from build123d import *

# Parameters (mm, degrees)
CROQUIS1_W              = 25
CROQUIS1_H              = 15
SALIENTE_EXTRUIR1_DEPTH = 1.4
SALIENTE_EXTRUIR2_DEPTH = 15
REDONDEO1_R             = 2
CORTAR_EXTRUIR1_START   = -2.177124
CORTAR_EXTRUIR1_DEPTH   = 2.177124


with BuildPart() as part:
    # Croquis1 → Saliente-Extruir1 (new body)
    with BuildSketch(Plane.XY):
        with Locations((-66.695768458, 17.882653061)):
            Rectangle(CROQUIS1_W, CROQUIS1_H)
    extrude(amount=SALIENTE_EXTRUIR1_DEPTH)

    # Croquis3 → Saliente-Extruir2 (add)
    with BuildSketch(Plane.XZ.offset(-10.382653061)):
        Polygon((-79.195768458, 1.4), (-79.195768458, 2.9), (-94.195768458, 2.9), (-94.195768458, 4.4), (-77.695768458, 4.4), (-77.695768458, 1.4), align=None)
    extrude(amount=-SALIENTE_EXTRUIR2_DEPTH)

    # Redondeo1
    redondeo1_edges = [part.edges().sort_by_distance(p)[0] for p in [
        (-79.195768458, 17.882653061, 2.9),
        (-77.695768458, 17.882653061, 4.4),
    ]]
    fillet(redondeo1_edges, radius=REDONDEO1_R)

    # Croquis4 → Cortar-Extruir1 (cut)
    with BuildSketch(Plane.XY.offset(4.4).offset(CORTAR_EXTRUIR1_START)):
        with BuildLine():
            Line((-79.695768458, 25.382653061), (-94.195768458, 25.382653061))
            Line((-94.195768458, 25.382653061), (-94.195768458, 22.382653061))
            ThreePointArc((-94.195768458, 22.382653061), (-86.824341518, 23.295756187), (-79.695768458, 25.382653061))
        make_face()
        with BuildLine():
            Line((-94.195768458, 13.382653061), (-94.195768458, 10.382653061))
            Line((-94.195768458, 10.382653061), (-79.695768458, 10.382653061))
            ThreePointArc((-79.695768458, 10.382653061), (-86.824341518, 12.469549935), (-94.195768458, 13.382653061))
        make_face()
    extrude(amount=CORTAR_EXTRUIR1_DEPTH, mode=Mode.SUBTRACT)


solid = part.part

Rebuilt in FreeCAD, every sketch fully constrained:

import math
import FreeCAD as App
import Part
import Sketcher


def edges_at(feature, points):
    """Names of the edges that pass closest to the given points."""
    edges = feature.Shape.Edges
    near = lambda p: min(range(len(edges)), key=lambda i: edges[i].distToShape(Part.Vertex(*p))[0])
    return sorted({f"Edge{near(p) + 1}" for p in points})


def add_polygon(sketch, points):
    """Adds a closed chain of lines whose ends are joined by coincident constraints."""
    first, n = sketch.GeometryCount, len(points)
    for a, b in zip(points, points[1:] + points[:1]):
        sketch.addGeometry(Part.LineSegment(App.Vector(*a, 0), App.Vector(*b, 0)), False)
    for i in range(n):
        sketch.addConstraint(Sketcher.Constraint("Coincident", first + i, 2, first + (i + 1) % n, 1))

doc = App.newDocument("Part")
params = doc.addObject("Spreadsheet::Sheet", "Params")
for row, (alias, value) in enumerate([
    ("sketch1_width", "25 mm"),
    ("sketch1_height", "15 mm"),
    ("pad1_length", "1.4 mm"),
    ("sketch2_width", "15 mm"),
    ("sketch2_height", "3 mm"),
    ("pad2_length", "15 mm"),
    ("fillet_radius", "2 mm"),
    ("sketch3_height", "3 mm"),
    ("sketch3_width", "14.5 mm"),
    ("pocket1_length", "2.177124 mm"),
], start=1):
    params.set(f"A{row}", alias)
    params.set(f"B{row}", "=" + value)
    params.setAlias(f"B{row}", alias)

body = doc.addObject("PartDesign::Body", "Body")

# Sketch on XY plane
sketch1 = body.newObject("Sketcher::SketchObject", "Sketch")
sketch1.AttachmentSupport = (doc.getObject("XY_Plane"), [""])
sketch1.MapMode = "FlatFace"
add_polygon(sketch1, [(-79, 25), (-79, 10), (-54, 10), (-54, 25)])  # lines 0-3
sketch1.addConstraint([
    Sketcher.Constraint("Vertical", 0),
    Sketcher.Constraint("Horizontal", 1),
    Sketcher.Constraint("Vertical", 2),
    Sketcher.Constraint("Horizontal", 3),
    Sketcher.Constraint("DistanceX", 1, 1, 1, 2, 25.0),
    Sketcher.Constraint("DistanceY", 0, 2, 0, 1, 15.0),
    Sketcher.Constraint("DistanceX", 0, 2, -1, 1, 79.195768),
    Sketcher.Constraint("DistanceY", -1, 1, 0, 2, 10.382653),
])
sketch1.setExpression("Constraints[8]", "Params.sketch1_width")
sketch1.setExpression("Constraints[9]", "Params.sketch1_height")
pad1 = body.newObject("PartDesign::Pad", "Pad")
pad1.Profile = sketch1
pad1.setExpression("Length", "Params.pad1_length")

# Sketch on XZ plane
sketch2 = body.newObject("Sketcher::SketchObject", "Sketch001")
sketch2.AttachmentSupport = (doc.getObject("XZ_Plane"), [""])
sketch2.MapMode = "FlatFace"
sketch2.AttachmentOffset = App.Placement(App.Vector(0, 0, -10.382653), App.Rotation())
add_polygon(sketch2, [(-79.2, 2.9), (-79.2, 1.4), (-77.7, 1.4), (-77.7, 4.4), (-94.2, 4.4), (-94.2, 2.9)])  # lines 0-5
sketch2.addConstraint([
    Sketcher.Constraint("Vertical", 0),
    Sketcher.Constraint("Horizontal", 1),
    Sketcher.Constraint("Vertical", 2),
    Sketcher.Constraint("Horizontal", 3),
    Sketcher.Constraint("Vertical", 4),
    Sketcher.Constraint("Horizontal", 5),
    Sketcher.Constraint("Equal", 1, 0),
    Sketcher.Constraint("Equal", 0, 4),
    Sketcher.Constraint("DistanceX", 5, 1, 5, 2, 15.0),
    Sketcher.Constraint("DistanceY", 2, 1, 2, 2, 3.0),
    Sketcher.Constraint("DistanceY", -1, 1, 0, 2, 1.4),
    Sketcher.Constraint("DistanceX", 0, 2, -1, 1, 79.195768),
])
sketch2.setExpression("Constraints[14]", "Params.sketch2_width")
sketch2.setExpression("Constraints[15]", "Params.sketch2_height")
pad2 = body.newObject("PartDesign::Pad", "Pad001")
pad2.Profile = sketch2
pad2.setExpression("Length", "Params.pad2_length")
pad2.Reversed = True
doc.recompute()

fillet = body.newObject("PartDesign::Fillet", "Fillet")
fillet.Base = (pad2, edges_at(pad2, [(-79.196, 17.883, 2.9), (-77.696, 17.883, 4.4)]))
fillet.setExpression("Radius", "Params.fillet_radius")

# Sketch on XY plane
sketch3 = body.newObject("Sketcher::SketchObject", "Sketch002")
sketch3.AttachmentSupport = (doc.getObject("XY_Plane"), [""])
sketch3.MapMode = "FlatFace"
sketch3.AttachmentOffset = App.Placement(App.Vector(0, 0, 2.222876), App.Rotation())
sketch3.addGeometry([
    Part.LineSegment(App.Vector(-79.7, 25.4, 0), App.Vector(-94.2, 25.4, 0)),  # 0
    Part.LineSegment(App.Vector(-94.2, 25.4, 0), App.Vector(-94.2, 22.4, 0)),  # 1
    Part.ArcOfCircle(Part.Circle(App.Vector(-96.1, 68.4, 0), App.Vector(0, 0, 1), 46), math.radians(-87.57), math.radians(-69.05)),  # 2
    Part.LineSegment(App.Vector(-94.2, 13.4, 0), App.Vector(-94.2, 10.4, 0)),  # 3
    Part.LineSegment(App.Vector(-94.2, 10.4, 0), App.Vector(-79.7, 10.4, 0)),  # 4
    Part.ArcOfCircle(Part.Circle(App.Vector(-96.1, -32.6, 0), App.Vector(0, 0, 1), 46), math.radians(69.05), math.radians(87.57)),  # 5
], False)
sketch3.addConstraint([
    Sketcher.Constraint("Coincident", 0, 2, 1, 1),
    Sketcher.Constraint("Coincident", 1, 2, 2, 1),
    Sketcher.Constraint("Coincident", 2, 2, 0, 1),
    Sketcher.Constraint("Coincident", 3, 2, 4, 1),
    Sketcher.Constraint("Coincident", 4, 2, 5, 1),
    Sketcher.Constraint("Coincident", 5, 2, 3, 1),
    Sketcher.Constraint("Horizontal", 0),
    Sketcher.Constraint("Vertical", 1),
    Sketcher.Constraint("Vertical", 3),
    Sketcher.Constraint("Horizontal", 4),
    Sketcher.Constraint("Equal", 2, 5),
    Sketcher.Constraint("Vertical", 2, 3, 5, 3),
    Sketcher.Constraint("Vertical", 1, 2, 3, 2),
    Sketcher.Constraint("Vertical", 2, 2, 4, 2),
    Sketcher.Constraint("DistanceY", 1, 2, 1, 1, 3.0),
    Sketcher.Constraint("DistanceX", 0, 2, 0, 1, 14.5),
    Sketcher.Constraint("DistanceY", 3, 2, 1, 2, 12.0),
    Sketcher.Constraint("Radius", 2, 46.028065),
    Sketcher.Constraint("DistanceY", -1, 1, 2, 3, 68.369218),
    Sketcher.Constraint("DistanceX", 0, 2, -1, 1, 94.195768),
])
sketch3.setExpression("Constraints[14]", "Params.sketch3_height")
sketch3.setExpression("Constraints[15]", "Params.sketch3_width")
pocket1 = body.newObject("PartDesign::Pocket", "Pocket")
pocket1.Profile = sketch3
pocket1.setExpression("Length", "Params.pocket1_length")
pocket1.Reversed = True

doc.recompute()
